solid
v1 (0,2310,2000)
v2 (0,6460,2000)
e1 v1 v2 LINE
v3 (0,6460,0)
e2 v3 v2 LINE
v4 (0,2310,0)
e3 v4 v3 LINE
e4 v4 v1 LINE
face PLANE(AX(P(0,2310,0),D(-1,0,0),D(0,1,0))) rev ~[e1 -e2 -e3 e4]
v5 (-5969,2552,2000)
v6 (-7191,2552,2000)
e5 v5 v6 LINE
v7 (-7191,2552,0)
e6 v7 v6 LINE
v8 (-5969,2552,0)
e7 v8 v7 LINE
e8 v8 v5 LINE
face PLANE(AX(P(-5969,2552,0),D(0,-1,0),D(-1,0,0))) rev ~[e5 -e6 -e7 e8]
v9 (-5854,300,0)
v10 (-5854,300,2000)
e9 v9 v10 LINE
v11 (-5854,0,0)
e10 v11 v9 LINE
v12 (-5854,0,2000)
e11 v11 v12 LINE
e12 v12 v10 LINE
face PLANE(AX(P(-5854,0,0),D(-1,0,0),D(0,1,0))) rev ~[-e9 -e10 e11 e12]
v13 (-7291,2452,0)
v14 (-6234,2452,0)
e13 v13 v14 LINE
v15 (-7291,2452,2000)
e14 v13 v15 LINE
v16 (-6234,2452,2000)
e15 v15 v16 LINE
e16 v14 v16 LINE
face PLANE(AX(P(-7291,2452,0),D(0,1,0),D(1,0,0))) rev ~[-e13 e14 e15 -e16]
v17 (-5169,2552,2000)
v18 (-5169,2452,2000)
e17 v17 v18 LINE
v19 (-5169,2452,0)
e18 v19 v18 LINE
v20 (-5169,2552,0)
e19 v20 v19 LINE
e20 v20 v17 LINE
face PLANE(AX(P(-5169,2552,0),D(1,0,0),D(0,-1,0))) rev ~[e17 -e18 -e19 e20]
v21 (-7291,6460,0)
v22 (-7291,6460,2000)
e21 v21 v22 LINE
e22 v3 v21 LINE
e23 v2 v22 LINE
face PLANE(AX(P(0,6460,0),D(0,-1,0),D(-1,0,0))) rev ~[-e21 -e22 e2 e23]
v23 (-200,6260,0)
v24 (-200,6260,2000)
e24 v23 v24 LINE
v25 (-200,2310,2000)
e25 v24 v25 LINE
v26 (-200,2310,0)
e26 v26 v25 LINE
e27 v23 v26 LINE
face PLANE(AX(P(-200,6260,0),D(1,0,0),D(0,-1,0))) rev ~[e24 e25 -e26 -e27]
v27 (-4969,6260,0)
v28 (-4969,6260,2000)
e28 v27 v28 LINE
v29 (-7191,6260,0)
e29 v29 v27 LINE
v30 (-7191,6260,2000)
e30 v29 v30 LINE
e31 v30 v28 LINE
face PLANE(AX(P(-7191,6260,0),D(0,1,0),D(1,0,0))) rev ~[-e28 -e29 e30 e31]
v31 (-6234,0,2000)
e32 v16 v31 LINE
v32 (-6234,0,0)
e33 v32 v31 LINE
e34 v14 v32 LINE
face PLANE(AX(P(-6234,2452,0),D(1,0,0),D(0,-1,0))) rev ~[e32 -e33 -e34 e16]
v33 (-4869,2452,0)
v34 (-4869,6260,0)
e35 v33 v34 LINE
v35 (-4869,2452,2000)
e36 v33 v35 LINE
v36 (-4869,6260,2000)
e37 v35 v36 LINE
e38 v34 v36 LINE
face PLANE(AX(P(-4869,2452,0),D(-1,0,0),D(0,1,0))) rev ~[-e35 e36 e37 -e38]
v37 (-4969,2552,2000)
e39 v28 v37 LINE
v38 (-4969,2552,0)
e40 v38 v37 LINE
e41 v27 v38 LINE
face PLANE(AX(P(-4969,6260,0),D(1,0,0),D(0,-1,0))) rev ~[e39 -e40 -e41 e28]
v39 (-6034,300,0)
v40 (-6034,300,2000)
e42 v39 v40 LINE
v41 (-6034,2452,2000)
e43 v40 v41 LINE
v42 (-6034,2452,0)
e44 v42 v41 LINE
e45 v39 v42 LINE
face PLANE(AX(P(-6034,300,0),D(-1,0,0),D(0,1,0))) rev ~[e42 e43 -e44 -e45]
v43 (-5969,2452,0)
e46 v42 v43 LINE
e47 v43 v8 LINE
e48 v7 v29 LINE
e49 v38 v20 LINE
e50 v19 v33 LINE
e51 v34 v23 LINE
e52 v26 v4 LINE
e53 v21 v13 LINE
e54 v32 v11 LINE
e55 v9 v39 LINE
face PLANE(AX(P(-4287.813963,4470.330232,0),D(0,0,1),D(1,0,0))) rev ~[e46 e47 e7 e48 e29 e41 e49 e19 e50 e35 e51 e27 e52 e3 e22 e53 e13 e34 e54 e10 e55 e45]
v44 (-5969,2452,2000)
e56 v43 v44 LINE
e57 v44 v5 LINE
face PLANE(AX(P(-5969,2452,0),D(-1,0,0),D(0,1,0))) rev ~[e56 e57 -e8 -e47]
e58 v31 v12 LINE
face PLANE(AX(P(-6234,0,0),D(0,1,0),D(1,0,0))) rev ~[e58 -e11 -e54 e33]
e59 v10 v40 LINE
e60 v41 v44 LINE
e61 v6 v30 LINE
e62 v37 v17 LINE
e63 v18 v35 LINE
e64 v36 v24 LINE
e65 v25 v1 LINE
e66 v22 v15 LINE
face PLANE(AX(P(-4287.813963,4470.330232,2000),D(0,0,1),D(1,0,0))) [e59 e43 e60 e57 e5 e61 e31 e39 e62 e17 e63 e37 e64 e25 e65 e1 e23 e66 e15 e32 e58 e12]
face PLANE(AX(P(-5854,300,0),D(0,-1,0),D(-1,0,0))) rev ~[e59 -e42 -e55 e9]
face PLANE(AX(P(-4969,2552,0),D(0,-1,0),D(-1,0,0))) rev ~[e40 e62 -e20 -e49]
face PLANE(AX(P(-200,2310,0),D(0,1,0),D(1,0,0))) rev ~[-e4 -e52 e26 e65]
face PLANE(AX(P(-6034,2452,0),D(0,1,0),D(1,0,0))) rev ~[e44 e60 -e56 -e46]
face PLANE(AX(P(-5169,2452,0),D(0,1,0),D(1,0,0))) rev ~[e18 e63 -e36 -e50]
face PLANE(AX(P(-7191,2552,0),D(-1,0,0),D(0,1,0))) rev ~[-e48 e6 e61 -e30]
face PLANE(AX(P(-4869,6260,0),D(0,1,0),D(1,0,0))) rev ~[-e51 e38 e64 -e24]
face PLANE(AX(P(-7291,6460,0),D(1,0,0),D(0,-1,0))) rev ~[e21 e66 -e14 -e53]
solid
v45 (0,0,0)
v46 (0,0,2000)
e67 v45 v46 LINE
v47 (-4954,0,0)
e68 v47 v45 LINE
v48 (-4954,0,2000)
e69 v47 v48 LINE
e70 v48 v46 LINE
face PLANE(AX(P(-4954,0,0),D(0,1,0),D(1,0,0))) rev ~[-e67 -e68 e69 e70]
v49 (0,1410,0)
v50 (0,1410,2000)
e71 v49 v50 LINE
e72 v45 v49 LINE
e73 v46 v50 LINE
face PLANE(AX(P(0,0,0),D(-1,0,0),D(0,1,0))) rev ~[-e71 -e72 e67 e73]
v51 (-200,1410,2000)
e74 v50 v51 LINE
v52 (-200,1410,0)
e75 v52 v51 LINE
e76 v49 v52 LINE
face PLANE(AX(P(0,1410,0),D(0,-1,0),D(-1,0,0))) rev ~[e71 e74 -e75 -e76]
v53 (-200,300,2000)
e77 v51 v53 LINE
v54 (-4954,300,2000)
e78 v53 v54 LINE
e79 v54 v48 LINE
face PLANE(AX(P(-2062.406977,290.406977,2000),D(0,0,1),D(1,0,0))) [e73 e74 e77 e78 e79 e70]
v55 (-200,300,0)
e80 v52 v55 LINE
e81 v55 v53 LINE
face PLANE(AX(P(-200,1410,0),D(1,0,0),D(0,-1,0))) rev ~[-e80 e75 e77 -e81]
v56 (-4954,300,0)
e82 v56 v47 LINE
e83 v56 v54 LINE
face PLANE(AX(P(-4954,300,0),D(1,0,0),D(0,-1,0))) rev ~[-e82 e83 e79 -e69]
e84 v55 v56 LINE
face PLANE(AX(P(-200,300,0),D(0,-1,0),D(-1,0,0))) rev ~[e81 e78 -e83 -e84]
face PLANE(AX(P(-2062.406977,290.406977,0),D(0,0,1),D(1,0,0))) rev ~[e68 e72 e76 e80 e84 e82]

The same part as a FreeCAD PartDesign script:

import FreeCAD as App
import Part
import Sketcher
from FreeCAD import Vector
Q = App.Units.Quantity

doc = App.newDocument("Part")
body = doc.addObject("PartDesign::Body", "Body")
body.AllowCompound = True

sketch1 = body.newObject("Sketcher::SketchObject", "Sketch")
sketch1.AttachmentSupport = (doc.getObject("XY_Plane"), [""])
sketch1.MapMode = "FlatFace"
sketch1.addGeometry(Part.LineSegment(Vector(-4954, 0, 0), Vector(0, 0, 0)), False)
sketch1.addGeometry(Part.LineSegment(Vector(0, 0, 0), Vector(0, 1410, 0)), False)
sketch1.addGeometry(Part.LineSegment(Vector(0, 1410, 0), Vector(-200, 1410, 0)), False)
sketch1.addGeometry(Part.LineSegment(Vector(-200, 1410, 0), Vector(-200, 300, 0)), False)
sketch1.addGeometry(Part.LineSegment(Vector(-200, 300, 0), Vector(-4954, 300, 0)), False)
sketch1.addGeometry(Part.LineSegment(Vector(-4954, 300, 0), Vector(-4954, 0, 0)), False)
sketch1.addGeometry(Part.LineSegment(Vector(-200, 2310, 0), Vector(0, 2310, 0)), False)
sketch1.addGeometry(Part.LineSegment(Vector(0, 2310, 0), Vector(0, 6460, 0)), False)
sketch1.addGeometry(Part.LineSegment(Vector(0, 6460, 0), Vector(-7291, 6460, 0)), False)
sketch1.addGeometry(Part.LineSegment(Vector(-7291, 6460, 0), Vector(-7291, 2452, 0)), False)
sketch1.addGeometry(Part.LineSegment(Vector(-7291, 2452, 0), Vector(-6234, 2452, 0)), False)
sketch1.addGeometry(Part.LineSegment(Vector(-6234, 2452, 0), Vector(-6234, 0, 0)), False)
sketch1.addGeometry(Part.LineSegment(Vector(-6234, 0, 0), Vector(-5854, 0, 0)), False)
sketch1.addGeometry(Part.LineSegment(Vector(-5854, 0, 0), Vector(-5854, 300, 0)), False)
sketch1.addGeometry(Part.LineSegment(Vector(-5854, 300, 0), Vector(-6034, 300, 0)), False)
sketch1.addGeometry(Part.LineSegment(Vector(-6034, 300, 0), Vector(-6034, 2452, 0)), False)
sketch1.addGeometry(Part.LineSegment(Vector(-6034, 2452, 0), Vector(-5969, 2452, 0)), False)
sketch1.addGeometry(Part.LineSegment(Vector(-5969, 2452, 0), Vector(-5969, 2552, 0)), False)
sketch1.addGeometry(Part.LineSegment(Vector(-5969, 2552, 0), Vector(-7191, 2552, 0)), False)
sketch1.addGeometry(Part.LineSegment(Vector(-7191, 2552, 0), Vector(-7191, 6260, 0)), False)
sketch1.addGeometry(Part.LineSegment(Vector(-7191, 6260, 0), Vector(-4969, 6260, 0)), False)
sketch1.addGeometry(Part.LineSegment(Vector(-4969, 6260, 0), Vector(-4969, 2552, 0)), False)
sketch1.addGeometry(Part.LineSegment(Vector(-4969, 2552, 0), Vector(-5169, 2552, 0)), False)
sketch1.addGeometry(Part.LineSegment(Vector(-5169, 2552, 0), Vector(-5169, 2452, 0)), False)
sketch1.addGeometry(Part.LineSegment(Vector(-5169, 2452, 0), Vector(-4869, 2452, 0)), False)
sketch1.addGeometry(Part.LineSegment(Vector(-4869, 2452, 0), Vector(-4869, 6260, 0)), False)
sketch1.addGeometry(Part.LineSegment(Vector(-4869, 6260, 0), Vector(-200, 6260, 0)), False)
sketch1.addGeometry(Part.LineSegment(Vector(-200, 6260, 0), Vector(-200, 2310, 0)), False)
sketch1.addConstraint(Sketcher.Constraint("Coincident", 0, 2, 1, 1))
sketch1.addConstraint(Sketcher.Constraint("Coincident", 1, 2, 2, 1))
sketch1.addConstraint(Sketcher.Constraint("Coincident", 2, 2, 3, 1))
sketch1.addConstraint(Sketcher.Constraint("Coincident", 3, 2, 4, 1))
sketch1.addConstraint(Sketcher.Constraint("Coincident", 4, 2, 5, 1))
sketch1.addConstraint(Sketcher.Constraint("Coincident", 5, 2, 0, 1))
sketch1.addConstraint(Sketcher.Constraint("Coincident", 6, 2, 7, 1))
sketch1.addConstraint(Sketcher.Constraint("Coincident", 7, 2, 8, 1))
sketch1.addConstraint(Sketcher.Constraint("Coincident", 8, 2, 9, 1))
sketch1.addConstraint(Sketcher.Constraint("Coincident", 9, 2, 10, 1))
sketch1.addConstraint(Sketcher.Constraint("Coincident", 10, 2, 11, 1))
sketch1.addConstraint(Sketcher.Constraint("Coincident", 11, 2, 12, 1))
sketch1.addConstraint(Sketcher.Constraint("Coincident", 12, 2, 13, 1))
sketch1.addConstraint(Sketcher.Constraint("Coincident", 13, 2, 14, 1))
sketch1.addConstraint(Sketcher.Constraint("Coincident", 14, 2, 15, 1))
sketch1.addConstraint(Sketcher.Constraint("Coincident", 15, 2, 16, 1))
sketch1.addConstraint(Sketcher.Constraint("Coincident", 16, 2, 17, 1))
sketch1.addConstraint(Sketcher.Constraint("Coincident", 17, 2, 18, 1))
sketch1.addConstraint(Sketcher.Constraint("Coincident", 18, 2, 19, 1))
sketch1.addConstraint(Sketcher.Constraint("Coincident", 19, 2, 20, 1))
sketch1.addConstraint(Sketcher.Constraint("Coincident", 20, 2, 21, 1))
sketch1.addConstraint(Sketcher.Constraint("Coincident", 21, 2, 22, 1))
sketch1.addConstraint(Sketcher.Constraint("Coincident", 22, 2, 23, 1))
sketch1.addConstraint(Sketcher.Constraint("Coincident", 23, 2, 24, 1))
sketch1.addConstraint(Sketcher.Constraint("Coincident", 24, 2, 25, 1))
sketch1.addConstraint(Sketcher.Constraint("Coincident", 25, 2, 26, 1))
sketch1.addConstraint(Sketcher.Constraint("Coincident", 26, 2, 27, 1))
sketch1.addConstraint(Sketcher.Constraint("Coincident", 27, 2, 6, 1))
sketch1.addConstraint(Sketcher.Constraint("Horizontal", 0))
sketch1.addConstraint(Sketcher.Constraint("Vertical", 1))
sketch1.addConstraint(Sketcher.Constraint("Horizontal", 2))
sketch1.addConstraint(Sketcher.Constraint("Vertical", 3))
sketch1.addConstraint(Sketcher.Constraint("Horizontal", 4))
sketch1.addConstraint(Sketcher.Constraint("Vertical", 5))
sketch1.addConstraint(Sketcher.Constraint("Horizontal", 6))
sketch1.addConstraint(Sketcher.Constraint("Vertical", 7))
sketch1.addConstraint(Sketcher.Constraint("Horizontal", 8))
sketch1.addConstraint(Sketcher.Constraint("Vertical", 9))
sketch1.addConstraint(Sketcher.Constraint("Horizontal", 10))
sketch1.addConstraint(Sketcher.Constraint("Vertical", 11))
sketch1.addConstraint(Sketcher.Constraint("Horizontal", 12))
sketch1.addConstraint(Sketcher.Constraint("Vertical", 13))
sketch1.addConstraint(Sketcher.Constraint("Horizontal", 14))
sketch1.addConstraint(Sketcher.Constraint("Vertical", 15))
sketch1.addConstraint(Sketcher.Constraint("Horizontal", 16))
sketch1.addConstraint(Sketcher.Constraint("Vertical", 17))
sketch1.addConstraint(Sketcher.Constraint("Horizontal", 18))
sketch1.addConstraint(Sketcher.Constraint("Vertical", 19))
sketch1.addConstraint(Sketcher.Constraint("Horizontal", 20))
sketch1.addConstraint(Sketcher.Constraint("Vertical", 21))
sketch1.addConstraint(Sketcher.Constraint("Horizontal", 22))
sketch1.addConstraint(Sketcher.Constraint("Vertical", 23))
sketch1.addConstraint(Sketcher.Constraint("Horizontal", 24))
sketch1.addConstraint(Sketcher.Constraint("Vertical", 25))
sketch1.addConstraint(Sketcher.Constraint("Horizontal", 26))
sketch1.addConstraint(Sketcher.Constraint("Vertical", 27))
sketch1.addConstraint(Sketcher.Constraint("Coincident", 0, 2, -1, 1))
sketch1.addConstraint(Sketcher.Constraint("PointOnObject", 6, 2, -2))
sketch1.addConstraint(Sketcher.Constraint("PointOnObject", 11, 2, -1))
sketch1.addConstraint(Sketcher.Constraint("Horizontal", 4, 2, 13, 2))
sketch1.addConstraint(Sketcher.Constraint("Horizontal", 10, 2, 15, 2))
sketch1.addConstraint(Sketcher.Constraint("Horizontal", 18, 2, 21, 2))
sketch1.addConstraint(Sketcher.Constraint("Horizontal", 16, 2, 23, 2))
sketch1.addConstraint(Sketcher.Constraint("Horizontal", 20, 2, 25, 2))
sketch1.addConstraint(Sketcher.Constraint("Vertical", 3, 2, 26, 2))
sketch1.addConstraint(Sketcher.Constraint("Equal", 6, 22))
sketch1.addConstraint(Sketcher.Constraint("Equal", 24, 5))
sketch1.addConstraint(Sketcher.Constraint("DistanceX", 0, 1, 0, 2, Q("4954 mm")))
sketch1.addConstraint(Sketcher.Constraint("DistanceX", 2, 2, 2, 1, Q("200 mm")))
sketch1.addConstraint(Sketcher.Constraint("DistanceX", 8, 2, 8, 1, Q("7291 mm")))
sketch1.addConstraint(Sketcher.Constraint("DistanceX", 10, 1, 10, 2, Q("1057 mm")))
sketch1.addConstraint(Sketcher.Constraint("DistanceX", 12, 1, 12, 2, Q("380 mm")))
sketch1.addConstraint(Sketcher.Constraint("DistanceX", 14, 2, 14, 1, Q("180 mm")))
sketch1.addConstraint(Sketcher.Constraint("DistanceX", 16, 1, 16, 2, Q("65 mm")))
sketch1.addConstraint(Sketcher.Constraint("DistanceX", 18, 2, 18, 1, Q("1222 mm")))
sketch1.addConstraint(Sketcher.Constraint("DistanceX", 20, 1, 20, 2, Q("2222 mm")))
sketch1.addConstraint(Sketcher.Constraint("DistanceX", 24, 1, 24, 2, Q("300 mm")))
sketch1.addConstraint(Sketcher.Constraint("DistanceY", 1, 1, 1, 2, Q("1410 mm")))
sketch1.addConstraint(Sketcher.Constraint("DistanceY", 7, 1, 7, 2, Q("4150 mm")))
sketch1.addConstraint(Sketcher.Constraint("DistanceY", 9, 2, 9, 1, Q("4008 mm")))
sketch1.addConstraint(Sketcher.Constraint("DistanceY", 11, 2, 11, 1, Q("2452 mm")))
sketch1.addConstraint(Sketcher.Constraint("DistanceY", 17, 1, 17, 2, Q("100 mm")))
sketch1.addConstraint(Sketcher.Constraint("DistanceY", 19, 1, 19, 2, Q("3708 mm")))
pad1 = body.newObject("PartDesign::Pad", "Pad")
pad1.Profile = sketch1
pad1.Length = 2000

doc.recompute()
